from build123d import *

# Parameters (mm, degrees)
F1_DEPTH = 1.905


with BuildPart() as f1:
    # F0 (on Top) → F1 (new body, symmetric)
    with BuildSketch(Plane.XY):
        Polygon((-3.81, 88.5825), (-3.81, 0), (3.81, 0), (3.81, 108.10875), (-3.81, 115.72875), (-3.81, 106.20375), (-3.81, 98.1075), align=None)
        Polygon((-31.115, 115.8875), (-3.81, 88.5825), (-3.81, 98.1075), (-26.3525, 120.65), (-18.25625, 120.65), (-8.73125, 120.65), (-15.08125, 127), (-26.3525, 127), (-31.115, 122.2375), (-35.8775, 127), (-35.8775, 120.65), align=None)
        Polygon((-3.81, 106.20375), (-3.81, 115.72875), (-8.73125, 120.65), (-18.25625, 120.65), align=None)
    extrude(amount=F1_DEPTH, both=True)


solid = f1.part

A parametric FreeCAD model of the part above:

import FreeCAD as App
import Part
import Sketcher

V = App.Vector
Q = App.Units.Quantity

doc = App.newDocument("Part")
body = doc.addObject("PartDesign::Body", "Body")

# Sketch on XY plane
sketch1 = body.newObject("Sketcher::SketchObject", "Sketch")
sketch1.AttachmentSupport = (doc.getObject("XY_Plane"), [""])
sketch1.MapMode = "FlatFace"
sketch1.addGeometry([
    Part.LineSegment(V(-4, 0, 0), V(4, 0, 0)),  # 0
    Part.LineSegment(V(4, 0, 0), V(4, 108, 0)),  # 1
    Part.LineSegment(V(4, 108, 0), V(-15, 127, 0)),  # 2
    Part.LineSegment(V(-15, 127, 0), V(-26, 127, 0)),  # 3
    Part.LineSegment(V(-26, 127, 0), V(-31, 122, 0)),  # 4
    Part.LineSegment(V(-31, 122, 0), V(-36, 127, 0)),  # 5
    Part.LineSegment(V(-36, 127, 0), V(-36, 121, 0)),  # 6
    Part.LineSegment(V(-36, 121, 0), V(-4, 89, 0)),  # 7
    Part.LineSegment(V(-4, 89, 0), V(-4, 0, 0)),  # 8
    Part.LineSegment(V(-4, 106, 0), V(-4, 98, 0)),  # 9
    Part.LineSegment(V(-4, 98, 0), V(-26, 121, 0)),  # 10
    Part.LineSegment(V(-26, 121, 0), V(-18, 121, 0)),  # 11
    Part.LineSegment(V(-18, 121, 0), V(-4, 106, 0)),  # 12
], False)
sketch1.addConstraint([
    Sketcher.Constraint("Coincident", 0, 2, 1, 1),
    Sketcher.Constraint("Coincident", 1, 2, 2, 1),
    Sketcher.Constraint("Coincident", 2, 2, 3, 1),
    Sketcher.Constraint("Coincident", 3, 2, 4, 1),
    Sketcher.Constraint("Coincident", 4, 2, 5, 1),
    Sketcher.Constraint("Coincident", 5, 2, 6, 1),
    Sketcher.Constraint("Coincident", 6, 2, 7, 1),
    Sketcher.Constraint("Coincident", 7, 2, 8, 1),
    Sketcher.Constraint("Coincident", 8, 2, 0, 1),
    Sketcher.Constraint("Coincident", 9, 2, 10, 1),
    Sketcher.Constraint("Coincident", 10, 2, 11, 1),
    Sketcher.Constraint("Coincident", 11, 2, 12, 1),
    Sketcher.Constraint("Coincident", 12, 2, 9, 1),
    Sketcher.Constraint("Horizontal", 0),
    Sketcher.Constraint("Vertical", 1),
    Sketcher.Constraint("Horizontal", 3),
    Sketcher.Constraint("Vertical", 6),
    Sketcher.Constraint("Vertical", 8),
    Sketcher.Constraint("Vertical", 9),
    Sketcher.Constraint("Horizontal", 11),
    Sketcher.Constraint("Symmetric", 0, 2, 8, 2, -1, 1),
    Sketcher.Constraint("Perpendicular", 2, 4),
    Sketcher.Constraint("Perpendicular", 4, 5),
    Sketcher.Constraint("Parallel", 5, 7),
    Sketcher.Constraint("Parallel", 7, 10),
    Sketcher.Constraint("Parallel", 10, 12),
    Sketcher.Constraint("Horizontal", 3, 2, 5, 2),
    Sketcher.Constraint("Horizontal", 6, 2, 10, 2),
    Sketcher.Constraint("Vertical", 8, 2, 9, 2),
    Sketcher.Constraint("Vertical", 3, 2, 10, 2),
    Sketcher.Constraint("Equal", 11, 9),
    Sketcher.Constraint("DistanceX", 0, 1, 0, 2, Q("0.3 in")),
    Sketcher.Constraint("DistanceY", -1, 1, 2, 2, Q("5 in")),
    Sketcher.Constraint("DistanceY", 6, 2, 6, 1, Q("0.25 in")),
    Sketcher.Constraint("DistanceY", 9, 2, 4, 2, Q("0.95 in")),
    Sketcher.Constraint("DistanceY", 8, 2, 8, 1, Q("3.4875 in")),
    Sketcher.Constraint("DistanceX", 2, 2, -1, 1, Q("0.59375 in")),
    Sketcher.Constraint("DistanceX", 11, 2, -1, 1, Q("0.71875 in")),
])
pad1 = body.newObject("PartDesign::Pad", "Pad")
pad1.Profile = sketch1
pad1.Length = Q("0.15 in")
pad1.Midplane = True

doc.recompute()
